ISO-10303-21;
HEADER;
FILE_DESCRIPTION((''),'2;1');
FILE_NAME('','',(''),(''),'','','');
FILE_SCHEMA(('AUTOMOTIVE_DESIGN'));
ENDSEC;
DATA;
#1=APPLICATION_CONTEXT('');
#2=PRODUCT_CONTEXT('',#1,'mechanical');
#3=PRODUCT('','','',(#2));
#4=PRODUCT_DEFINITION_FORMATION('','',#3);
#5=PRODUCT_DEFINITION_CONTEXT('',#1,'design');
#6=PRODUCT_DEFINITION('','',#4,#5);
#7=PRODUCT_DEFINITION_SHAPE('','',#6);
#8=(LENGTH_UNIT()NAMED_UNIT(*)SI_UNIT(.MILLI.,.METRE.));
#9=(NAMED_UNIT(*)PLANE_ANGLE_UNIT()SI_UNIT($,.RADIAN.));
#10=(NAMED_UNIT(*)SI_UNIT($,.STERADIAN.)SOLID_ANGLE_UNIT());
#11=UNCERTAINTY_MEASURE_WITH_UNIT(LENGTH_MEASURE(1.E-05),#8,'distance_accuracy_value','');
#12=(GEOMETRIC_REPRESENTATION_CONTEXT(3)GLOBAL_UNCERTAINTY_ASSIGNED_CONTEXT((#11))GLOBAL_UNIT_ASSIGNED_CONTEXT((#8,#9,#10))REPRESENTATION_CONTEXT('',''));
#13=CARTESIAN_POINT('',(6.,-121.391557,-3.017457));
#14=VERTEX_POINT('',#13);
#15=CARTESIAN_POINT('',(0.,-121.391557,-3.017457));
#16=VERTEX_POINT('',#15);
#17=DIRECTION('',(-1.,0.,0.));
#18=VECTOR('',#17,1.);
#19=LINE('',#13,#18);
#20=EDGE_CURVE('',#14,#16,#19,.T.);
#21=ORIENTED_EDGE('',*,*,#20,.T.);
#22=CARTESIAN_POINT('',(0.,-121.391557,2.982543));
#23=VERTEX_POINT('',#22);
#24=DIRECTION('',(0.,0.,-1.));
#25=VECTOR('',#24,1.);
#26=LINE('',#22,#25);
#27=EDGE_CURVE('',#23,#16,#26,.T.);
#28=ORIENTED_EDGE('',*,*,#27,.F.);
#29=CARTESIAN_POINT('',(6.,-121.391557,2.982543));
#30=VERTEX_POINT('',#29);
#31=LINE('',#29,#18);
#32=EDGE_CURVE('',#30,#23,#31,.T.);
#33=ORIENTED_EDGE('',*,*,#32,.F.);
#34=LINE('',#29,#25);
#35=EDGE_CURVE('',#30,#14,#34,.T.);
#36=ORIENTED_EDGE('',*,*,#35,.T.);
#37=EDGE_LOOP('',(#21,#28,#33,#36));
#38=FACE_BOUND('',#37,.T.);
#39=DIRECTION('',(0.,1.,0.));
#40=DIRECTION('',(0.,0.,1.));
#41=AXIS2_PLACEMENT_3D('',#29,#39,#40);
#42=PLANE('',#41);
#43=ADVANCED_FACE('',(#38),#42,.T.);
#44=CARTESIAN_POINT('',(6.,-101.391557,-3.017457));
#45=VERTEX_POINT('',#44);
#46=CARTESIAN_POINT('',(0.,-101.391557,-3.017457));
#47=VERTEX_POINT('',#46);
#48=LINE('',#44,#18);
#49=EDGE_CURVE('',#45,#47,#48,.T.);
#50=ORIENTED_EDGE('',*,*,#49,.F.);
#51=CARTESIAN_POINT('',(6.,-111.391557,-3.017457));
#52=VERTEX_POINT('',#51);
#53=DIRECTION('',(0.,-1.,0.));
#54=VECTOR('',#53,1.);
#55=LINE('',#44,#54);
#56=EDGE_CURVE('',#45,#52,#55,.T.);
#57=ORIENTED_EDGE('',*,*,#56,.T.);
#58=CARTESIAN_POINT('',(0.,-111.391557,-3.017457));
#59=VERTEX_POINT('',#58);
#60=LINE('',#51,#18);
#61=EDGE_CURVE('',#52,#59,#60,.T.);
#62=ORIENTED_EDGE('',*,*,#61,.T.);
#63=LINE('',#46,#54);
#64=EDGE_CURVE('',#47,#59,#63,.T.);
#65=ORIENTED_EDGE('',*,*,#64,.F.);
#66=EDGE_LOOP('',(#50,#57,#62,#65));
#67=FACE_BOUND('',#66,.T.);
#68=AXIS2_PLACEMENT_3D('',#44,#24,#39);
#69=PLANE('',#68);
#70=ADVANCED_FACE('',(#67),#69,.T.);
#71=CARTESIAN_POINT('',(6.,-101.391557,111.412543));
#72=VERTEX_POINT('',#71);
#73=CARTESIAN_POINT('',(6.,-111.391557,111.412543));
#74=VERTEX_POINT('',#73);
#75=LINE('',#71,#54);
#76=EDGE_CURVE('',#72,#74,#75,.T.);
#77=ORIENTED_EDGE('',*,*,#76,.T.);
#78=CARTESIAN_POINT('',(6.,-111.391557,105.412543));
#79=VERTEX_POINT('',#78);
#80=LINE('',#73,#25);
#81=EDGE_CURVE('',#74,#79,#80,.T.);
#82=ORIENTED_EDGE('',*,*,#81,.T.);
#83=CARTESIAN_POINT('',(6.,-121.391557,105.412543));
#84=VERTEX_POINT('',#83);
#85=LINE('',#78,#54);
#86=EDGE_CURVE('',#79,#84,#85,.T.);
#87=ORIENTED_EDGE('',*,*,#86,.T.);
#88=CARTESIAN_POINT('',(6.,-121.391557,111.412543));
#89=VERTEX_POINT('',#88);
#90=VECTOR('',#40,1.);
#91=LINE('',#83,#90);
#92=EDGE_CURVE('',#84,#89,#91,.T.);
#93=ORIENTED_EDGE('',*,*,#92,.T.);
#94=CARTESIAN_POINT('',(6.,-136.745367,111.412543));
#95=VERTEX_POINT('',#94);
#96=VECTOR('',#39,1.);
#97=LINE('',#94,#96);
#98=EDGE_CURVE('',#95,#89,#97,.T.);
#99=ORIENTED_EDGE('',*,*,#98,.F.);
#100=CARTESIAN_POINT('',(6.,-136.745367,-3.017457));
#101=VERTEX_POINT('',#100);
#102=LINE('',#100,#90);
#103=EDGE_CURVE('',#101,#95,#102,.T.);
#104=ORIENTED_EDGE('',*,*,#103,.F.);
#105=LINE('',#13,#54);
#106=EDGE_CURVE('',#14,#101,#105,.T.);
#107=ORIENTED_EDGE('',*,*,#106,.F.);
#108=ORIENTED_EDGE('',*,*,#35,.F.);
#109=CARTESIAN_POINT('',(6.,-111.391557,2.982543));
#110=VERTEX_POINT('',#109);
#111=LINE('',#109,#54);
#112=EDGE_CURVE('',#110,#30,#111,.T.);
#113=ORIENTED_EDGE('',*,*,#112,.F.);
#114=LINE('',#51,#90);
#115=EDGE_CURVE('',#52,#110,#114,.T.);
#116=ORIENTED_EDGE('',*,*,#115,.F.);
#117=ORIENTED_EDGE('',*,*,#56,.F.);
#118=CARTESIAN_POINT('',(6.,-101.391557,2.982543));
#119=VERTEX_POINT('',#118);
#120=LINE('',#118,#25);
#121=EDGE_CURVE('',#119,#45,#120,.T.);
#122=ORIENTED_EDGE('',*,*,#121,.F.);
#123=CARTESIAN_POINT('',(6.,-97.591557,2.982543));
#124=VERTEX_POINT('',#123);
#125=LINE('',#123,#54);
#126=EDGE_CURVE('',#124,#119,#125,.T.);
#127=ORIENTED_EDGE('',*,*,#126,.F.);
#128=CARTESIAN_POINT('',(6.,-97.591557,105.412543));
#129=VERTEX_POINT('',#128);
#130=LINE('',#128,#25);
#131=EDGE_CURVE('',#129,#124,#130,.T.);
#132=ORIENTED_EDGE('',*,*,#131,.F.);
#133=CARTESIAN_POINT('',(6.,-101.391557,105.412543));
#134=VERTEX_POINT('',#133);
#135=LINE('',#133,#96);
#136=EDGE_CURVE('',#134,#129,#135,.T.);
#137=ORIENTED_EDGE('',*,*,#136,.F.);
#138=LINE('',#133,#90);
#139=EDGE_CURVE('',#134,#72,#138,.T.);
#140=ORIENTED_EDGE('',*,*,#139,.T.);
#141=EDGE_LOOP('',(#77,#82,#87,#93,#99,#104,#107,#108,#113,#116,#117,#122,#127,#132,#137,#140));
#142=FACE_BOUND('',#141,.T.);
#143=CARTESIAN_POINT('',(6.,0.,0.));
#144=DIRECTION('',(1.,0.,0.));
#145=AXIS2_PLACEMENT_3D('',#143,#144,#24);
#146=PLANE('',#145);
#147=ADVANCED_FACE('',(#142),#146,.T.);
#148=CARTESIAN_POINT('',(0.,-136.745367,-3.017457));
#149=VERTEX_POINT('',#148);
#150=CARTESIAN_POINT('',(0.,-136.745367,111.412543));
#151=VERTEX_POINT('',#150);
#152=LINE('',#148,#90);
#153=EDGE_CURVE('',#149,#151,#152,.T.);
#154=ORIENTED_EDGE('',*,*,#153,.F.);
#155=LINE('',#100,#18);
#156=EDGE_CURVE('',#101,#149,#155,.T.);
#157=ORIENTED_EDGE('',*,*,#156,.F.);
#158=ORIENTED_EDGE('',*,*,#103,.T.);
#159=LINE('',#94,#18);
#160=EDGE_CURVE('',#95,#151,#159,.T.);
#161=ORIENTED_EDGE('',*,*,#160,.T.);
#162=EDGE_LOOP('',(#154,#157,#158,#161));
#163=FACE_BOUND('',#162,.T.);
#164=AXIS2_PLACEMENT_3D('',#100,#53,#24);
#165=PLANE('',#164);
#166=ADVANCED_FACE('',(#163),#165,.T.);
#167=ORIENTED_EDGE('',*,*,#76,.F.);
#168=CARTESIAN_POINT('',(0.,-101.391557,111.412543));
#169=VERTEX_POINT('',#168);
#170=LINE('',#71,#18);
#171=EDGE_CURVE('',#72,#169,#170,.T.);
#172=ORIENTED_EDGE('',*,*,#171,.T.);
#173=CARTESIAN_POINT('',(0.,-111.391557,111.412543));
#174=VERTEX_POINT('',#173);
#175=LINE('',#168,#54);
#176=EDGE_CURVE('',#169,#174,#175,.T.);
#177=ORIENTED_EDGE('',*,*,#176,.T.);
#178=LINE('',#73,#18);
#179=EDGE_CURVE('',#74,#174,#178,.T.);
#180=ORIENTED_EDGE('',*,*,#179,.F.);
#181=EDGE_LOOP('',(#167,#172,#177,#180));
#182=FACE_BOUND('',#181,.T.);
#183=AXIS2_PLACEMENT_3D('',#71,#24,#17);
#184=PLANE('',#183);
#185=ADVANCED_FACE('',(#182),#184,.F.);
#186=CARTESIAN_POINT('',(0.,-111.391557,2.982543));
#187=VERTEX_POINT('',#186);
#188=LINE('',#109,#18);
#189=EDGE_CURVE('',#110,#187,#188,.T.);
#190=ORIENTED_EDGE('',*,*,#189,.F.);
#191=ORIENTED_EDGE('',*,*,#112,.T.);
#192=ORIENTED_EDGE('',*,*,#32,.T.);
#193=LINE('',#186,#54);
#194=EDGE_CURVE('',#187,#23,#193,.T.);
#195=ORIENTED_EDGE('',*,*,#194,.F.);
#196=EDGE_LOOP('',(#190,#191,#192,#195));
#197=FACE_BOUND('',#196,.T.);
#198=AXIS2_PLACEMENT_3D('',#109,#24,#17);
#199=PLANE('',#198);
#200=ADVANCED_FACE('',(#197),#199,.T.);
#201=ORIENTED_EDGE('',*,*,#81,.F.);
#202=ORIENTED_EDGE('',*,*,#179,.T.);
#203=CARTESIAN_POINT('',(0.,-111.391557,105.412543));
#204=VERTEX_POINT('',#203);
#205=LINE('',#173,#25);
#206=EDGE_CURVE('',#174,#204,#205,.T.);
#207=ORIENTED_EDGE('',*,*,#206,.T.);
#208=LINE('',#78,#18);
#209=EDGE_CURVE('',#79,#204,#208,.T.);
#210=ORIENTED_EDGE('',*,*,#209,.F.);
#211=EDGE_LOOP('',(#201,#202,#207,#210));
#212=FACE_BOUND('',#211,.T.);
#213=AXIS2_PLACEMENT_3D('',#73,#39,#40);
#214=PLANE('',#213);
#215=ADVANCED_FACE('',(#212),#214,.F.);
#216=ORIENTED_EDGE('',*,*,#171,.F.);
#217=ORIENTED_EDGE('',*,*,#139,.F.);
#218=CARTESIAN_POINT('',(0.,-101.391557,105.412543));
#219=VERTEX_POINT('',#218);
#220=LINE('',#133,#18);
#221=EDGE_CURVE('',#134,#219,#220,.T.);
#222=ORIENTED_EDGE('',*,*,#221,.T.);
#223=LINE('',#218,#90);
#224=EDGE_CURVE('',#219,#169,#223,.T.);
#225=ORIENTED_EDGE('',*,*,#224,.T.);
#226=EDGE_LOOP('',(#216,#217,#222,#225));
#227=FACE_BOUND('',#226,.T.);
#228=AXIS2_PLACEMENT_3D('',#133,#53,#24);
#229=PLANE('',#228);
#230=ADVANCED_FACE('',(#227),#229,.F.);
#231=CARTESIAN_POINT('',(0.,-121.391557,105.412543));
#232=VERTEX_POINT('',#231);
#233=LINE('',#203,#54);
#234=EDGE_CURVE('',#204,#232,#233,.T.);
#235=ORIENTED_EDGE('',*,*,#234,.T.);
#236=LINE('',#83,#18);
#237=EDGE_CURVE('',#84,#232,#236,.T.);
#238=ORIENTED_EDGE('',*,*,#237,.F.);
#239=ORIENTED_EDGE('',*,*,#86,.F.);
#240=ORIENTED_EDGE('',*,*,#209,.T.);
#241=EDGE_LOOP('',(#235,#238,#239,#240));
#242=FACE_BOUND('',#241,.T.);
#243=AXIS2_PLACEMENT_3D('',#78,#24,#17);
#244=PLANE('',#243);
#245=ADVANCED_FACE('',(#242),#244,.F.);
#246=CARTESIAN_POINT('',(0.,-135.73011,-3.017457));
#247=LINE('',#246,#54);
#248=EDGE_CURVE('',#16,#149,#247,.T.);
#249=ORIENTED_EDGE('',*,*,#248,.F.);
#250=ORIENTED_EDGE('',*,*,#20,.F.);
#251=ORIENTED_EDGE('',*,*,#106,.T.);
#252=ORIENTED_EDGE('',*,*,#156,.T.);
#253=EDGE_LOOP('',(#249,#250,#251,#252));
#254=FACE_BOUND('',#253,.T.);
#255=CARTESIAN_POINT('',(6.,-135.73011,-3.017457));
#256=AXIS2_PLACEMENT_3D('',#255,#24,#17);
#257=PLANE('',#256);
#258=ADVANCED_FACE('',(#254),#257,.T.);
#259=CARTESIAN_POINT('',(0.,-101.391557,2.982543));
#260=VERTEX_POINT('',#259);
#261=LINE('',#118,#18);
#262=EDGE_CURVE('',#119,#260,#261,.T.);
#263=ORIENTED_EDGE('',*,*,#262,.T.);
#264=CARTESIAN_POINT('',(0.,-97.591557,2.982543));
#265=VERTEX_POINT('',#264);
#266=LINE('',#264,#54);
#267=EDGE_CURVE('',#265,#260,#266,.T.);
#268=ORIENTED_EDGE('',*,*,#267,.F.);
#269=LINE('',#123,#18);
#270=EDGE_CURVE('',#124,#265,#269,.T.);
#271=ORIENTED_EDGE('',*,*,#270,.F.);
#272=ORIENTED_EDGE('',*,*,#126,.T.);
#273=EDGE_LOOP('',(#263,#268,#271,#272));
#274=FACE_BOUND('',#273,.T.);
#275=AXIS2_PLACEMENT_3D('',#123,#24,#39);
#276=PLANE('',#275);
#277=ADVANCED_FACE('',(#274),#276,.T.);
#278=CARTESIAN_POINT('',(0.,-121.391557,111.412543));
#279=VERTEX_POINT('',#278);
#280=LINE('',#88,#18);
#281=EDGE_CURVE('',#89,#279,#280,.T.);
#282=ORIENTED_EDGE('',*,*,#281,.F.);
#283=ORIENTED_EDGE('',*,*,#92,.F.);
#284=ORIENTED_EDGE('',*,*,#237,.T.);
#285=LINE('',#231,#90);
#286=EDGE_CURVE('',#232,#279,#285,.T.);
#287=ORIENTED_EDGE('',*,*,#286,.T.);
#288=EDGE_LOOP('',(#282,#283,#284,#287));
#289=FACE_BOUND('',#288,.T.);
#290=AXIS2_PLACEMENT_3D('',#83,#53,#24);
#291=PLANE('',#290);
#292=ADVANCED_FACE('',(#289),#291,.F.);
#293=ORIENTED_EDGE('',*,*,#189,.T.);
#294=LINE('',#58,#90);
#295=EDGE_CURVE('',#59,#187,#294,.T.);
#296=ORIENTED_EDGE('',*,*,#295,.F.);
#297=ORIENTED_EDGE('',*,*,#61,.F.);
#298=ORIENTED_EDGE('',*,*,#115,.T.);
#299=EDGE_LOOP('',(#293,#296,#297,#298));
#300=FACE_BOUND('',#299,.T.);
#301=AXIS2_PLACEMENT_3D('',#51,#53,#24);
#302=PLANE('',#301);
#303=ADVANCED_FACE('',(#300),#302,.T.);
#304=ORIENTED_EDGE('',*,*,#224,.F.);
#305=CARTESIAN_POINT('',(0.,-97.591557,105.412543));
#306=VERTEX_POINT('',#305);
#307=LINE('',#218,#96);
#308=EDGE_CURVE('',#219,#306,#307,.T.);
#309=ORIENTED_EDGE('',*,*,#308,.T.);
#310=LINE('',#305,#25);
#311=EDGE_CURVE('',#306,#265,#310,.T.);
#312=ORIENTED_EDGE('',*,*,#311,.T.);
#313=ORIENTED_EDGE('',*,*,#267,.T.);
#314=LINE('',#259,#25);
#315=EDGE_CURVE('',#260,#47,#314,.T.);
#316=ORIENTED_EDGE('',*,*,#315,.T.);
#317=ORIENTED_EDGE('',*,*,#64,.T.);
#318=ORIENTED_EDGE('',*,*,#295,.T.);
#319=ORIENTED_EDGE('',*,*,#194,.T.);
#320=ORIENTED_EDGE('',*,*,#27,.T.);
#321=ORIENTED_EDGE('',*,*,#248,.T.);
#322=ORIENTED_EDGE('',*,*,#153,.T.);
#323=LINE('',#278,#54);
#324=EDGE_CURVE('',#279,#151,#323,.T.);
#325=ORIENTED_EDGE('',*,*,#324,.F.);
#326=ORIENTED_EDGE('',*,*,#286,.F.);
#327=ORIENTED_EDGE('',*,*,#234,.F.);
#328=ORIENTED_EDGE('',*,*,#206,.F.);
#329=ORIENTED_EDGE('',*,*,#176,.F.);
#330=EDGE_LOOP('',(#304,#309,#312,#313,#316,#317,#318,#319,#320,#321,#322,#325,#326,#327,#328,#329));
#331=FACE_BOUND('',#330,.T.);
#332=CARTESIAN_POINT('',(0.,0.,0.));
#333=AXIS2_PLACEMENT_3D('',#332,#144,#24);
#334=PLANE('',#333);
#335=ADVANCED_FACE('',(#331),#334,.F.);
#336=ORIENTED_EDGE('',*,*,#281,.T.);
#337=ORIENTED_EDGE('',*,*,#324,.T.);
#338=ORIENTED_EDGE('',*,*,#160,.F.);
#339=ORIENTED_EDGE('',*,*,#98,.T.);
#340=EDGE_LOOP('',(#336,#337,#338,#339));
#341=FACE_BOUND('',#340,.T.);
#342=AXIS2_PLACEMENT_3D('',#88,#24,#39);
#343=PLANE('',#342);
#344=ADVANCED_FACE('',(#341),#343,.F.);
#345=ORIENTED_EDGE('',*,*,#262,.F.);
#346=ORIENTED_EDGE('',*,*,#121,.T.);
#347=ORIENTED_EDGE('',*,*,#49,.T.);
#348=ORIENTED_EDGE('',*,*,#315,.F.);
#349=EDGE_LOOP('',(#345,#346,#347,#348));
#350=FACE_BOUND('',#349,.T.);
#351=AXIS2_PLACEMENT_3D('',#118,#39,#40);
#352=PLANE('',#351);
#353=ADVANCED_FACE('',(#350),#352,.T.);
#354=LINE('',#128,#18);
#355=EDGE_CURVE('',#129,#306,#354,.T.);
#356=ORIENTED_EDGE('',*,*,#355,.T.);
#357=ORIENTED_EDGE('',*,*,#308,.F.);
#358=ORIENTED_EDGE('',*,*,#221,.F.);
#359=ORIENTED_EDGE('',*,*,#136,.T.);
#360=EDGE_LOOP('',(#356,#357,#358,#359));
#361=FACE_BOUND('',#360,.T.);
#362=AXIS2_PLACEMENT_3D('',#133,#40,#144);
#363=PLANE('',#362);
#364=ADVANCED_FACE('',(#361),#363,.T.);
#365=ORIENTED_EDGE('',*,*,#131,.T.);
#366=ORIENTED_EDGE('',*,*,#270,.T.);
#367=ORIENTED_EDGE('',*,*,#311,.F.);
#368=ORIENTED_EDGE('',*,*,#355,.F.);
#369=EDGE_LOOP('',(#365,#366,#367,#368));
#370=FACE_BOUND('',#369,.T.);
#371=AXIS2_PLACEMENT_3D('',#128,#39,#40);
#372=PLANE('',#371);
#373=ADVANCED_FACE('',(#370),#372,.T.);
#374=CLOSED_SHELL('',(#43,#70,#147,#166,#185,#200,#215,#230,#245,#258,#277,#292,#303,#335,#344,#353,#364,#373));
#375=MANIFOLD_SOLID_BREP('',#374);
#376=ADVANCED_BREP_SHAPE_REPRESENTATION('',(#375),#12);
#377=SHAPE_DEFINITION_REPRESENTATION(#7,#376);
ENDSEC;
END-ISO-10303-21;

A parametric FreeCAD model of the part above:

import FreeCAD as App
import Part
import Sketcher

V = App.Vector
Q = App.Units.Quantity


def add_polygon(sketch, points):
    """Adds a closed chain of lines whose ends are joined by coincident constraints."""
    first, n = sketch.GeometryCount, len(points)
    for a, b in zip(points, points[1:] + points[:1]):
        sketch.addGeometry(Part.LineSegment(App.Vector(*a, 0), App.Vector(*b, 0)), False)
    for i in range(n):
        sketch.addConstraint(Sketcher.Constraint("Coincident", first + i, 2, first + (i + 1) % n, 1))

doc = App.newDocument("Part")
body = doc.addObject("PartDesign::Body", "Body")

sketch1 = doc.addObject("Sketcher::SketchObject", "Sketch")
body.addObject(sketch1)
sketch1.AttachmentSupport = (doc.YZ_Plane, [""])
sketch1.MapMode = "FlatFace"
add_polygon(sketch1, [(-136.745367, -3.017457), (-121.391557, -3.017457), (-121.391557, 2.982543), (-111.391557, 2.982543), (-111.391557, -3.017457), (-101.391557, -3.017457), (-101.391557, 2.982543), (-97.591557, 2.982543), (-97.591557, 105.412543), (-101.391557, 105.412543), (-101.391557, 111.412543), (-111.391557, 111.412543), (-111.391557, 105.412543), (-121.391557, 105.412543), (-121.391557, 111.412543), (-136.745367, 111.412543)])
sketch1.addConstraint(Sketcher.Constraint("Horizontal", 0))
sketch1.addConstraint(Sketcher.Constraint("Vertical", 1))
sketch1.addConstraint(Sketcher.Constraint("Horizontal", 2))
sketch1.addConstraint(Sketcher.Constraint("Vertical", 3))
sketch1.addConstraint(Sketcher.Constraint("Horizontal", 4))
sketch1.addConstraint(Sketcher.Constraint("Vertical", 5))
sketch1.addConstraint(Sketcher.Constraint("Horizontal", 6))
sketch1.addConstraint(Sketcher.Constraint("Vertical", 7))
sketch1.addConstraint(Sketcher.Constraint("Horizontal", 8))
sketch1.addConstraint(Sketcher.Constraint("Vertical", 9))
sketch1.addConstraint(Sketcher.Constraint("Horizontal", 10))
sketch1.addConstraint(Sketcher.Constraint("Vertical", 11))
sketch1.addConstraint(Sketcher.Constraint("Horizontal", 12))
sketch1.addConstraint(Sketcher.Constraint("Vertical", 13))
sketch1.addConstraint(Sketcher.Constraint("Horizontal", 14))
sketch1.addConstraint(Sketcher.Constraint("Vertical", 15))
sketch1.addConstraint(Sketcher.Constraint("Horizontal", 0, 2, 3, 2))
sketch1.addConstraint(Sketcher.Constraint("Horizontal", 2, 2, 5, 2))
sketch1.addConstraint(Sketcher.Constraint("Horizontal", 8, 2, 11, 2))
sketch1.addConstraint(Sketcher.Constraint("Horizontal", 10, 2, 13, 2))
sketch1.addConstraint(Sketcher.Constraint("Vertical", 5, 2, 8, 2))
sketch1.addConstraint(Sketcher.Constraint("Vertical", 3, 2, 10, 2))
sketch1.addConstraint(Sketcher.Constraint("Vertical", 1, 2, 12, 2))
sketch1.addConstraint(Sketcher.Constraint("Equal", 2, 4))
sketch1.addConstraint(Sketcher.Constraint("Equal", 5, 9))
sketch1.addConstraint(Sketcher.Constraint("DistanceX", 2, 1, 2, 2, Q("10 mm")))
sketch1.addConstraint(Sketcher.Constraint("DistanceY", 1, 1, 1, 2, Q("6 mm")))
sketch1.addConstraint(Sketcher.Constraint("DistanceX", 6, 1, 6, 2, Q("3.8 mm")))
sketch1.addConstraint(Sketcher.Constraint("DistanceY", 7, 1, 7, 2, Q("102.43 mm")))
sketch1.addConstraint(Sketcher.Constraint("DistanceX", 0, 1, 0, 2, Q("15.35381 mm")))
sketch1.addConstraint(Sketcher.Constraint("DistanceX", 0, 2, -1, 1, Q("121.391557 mm")))
sketch1.addConstraint(Sketcher.Constraint("DistanceY", 0, 2, -1, 1, Q("3.017457 mm")))
pad1 = doc.addObject("PartDesign::Pad", "Pad")
body.addObject(pad1)
pad1.Profile = sketch1
pad1.Length = 6

doc.recompute()
